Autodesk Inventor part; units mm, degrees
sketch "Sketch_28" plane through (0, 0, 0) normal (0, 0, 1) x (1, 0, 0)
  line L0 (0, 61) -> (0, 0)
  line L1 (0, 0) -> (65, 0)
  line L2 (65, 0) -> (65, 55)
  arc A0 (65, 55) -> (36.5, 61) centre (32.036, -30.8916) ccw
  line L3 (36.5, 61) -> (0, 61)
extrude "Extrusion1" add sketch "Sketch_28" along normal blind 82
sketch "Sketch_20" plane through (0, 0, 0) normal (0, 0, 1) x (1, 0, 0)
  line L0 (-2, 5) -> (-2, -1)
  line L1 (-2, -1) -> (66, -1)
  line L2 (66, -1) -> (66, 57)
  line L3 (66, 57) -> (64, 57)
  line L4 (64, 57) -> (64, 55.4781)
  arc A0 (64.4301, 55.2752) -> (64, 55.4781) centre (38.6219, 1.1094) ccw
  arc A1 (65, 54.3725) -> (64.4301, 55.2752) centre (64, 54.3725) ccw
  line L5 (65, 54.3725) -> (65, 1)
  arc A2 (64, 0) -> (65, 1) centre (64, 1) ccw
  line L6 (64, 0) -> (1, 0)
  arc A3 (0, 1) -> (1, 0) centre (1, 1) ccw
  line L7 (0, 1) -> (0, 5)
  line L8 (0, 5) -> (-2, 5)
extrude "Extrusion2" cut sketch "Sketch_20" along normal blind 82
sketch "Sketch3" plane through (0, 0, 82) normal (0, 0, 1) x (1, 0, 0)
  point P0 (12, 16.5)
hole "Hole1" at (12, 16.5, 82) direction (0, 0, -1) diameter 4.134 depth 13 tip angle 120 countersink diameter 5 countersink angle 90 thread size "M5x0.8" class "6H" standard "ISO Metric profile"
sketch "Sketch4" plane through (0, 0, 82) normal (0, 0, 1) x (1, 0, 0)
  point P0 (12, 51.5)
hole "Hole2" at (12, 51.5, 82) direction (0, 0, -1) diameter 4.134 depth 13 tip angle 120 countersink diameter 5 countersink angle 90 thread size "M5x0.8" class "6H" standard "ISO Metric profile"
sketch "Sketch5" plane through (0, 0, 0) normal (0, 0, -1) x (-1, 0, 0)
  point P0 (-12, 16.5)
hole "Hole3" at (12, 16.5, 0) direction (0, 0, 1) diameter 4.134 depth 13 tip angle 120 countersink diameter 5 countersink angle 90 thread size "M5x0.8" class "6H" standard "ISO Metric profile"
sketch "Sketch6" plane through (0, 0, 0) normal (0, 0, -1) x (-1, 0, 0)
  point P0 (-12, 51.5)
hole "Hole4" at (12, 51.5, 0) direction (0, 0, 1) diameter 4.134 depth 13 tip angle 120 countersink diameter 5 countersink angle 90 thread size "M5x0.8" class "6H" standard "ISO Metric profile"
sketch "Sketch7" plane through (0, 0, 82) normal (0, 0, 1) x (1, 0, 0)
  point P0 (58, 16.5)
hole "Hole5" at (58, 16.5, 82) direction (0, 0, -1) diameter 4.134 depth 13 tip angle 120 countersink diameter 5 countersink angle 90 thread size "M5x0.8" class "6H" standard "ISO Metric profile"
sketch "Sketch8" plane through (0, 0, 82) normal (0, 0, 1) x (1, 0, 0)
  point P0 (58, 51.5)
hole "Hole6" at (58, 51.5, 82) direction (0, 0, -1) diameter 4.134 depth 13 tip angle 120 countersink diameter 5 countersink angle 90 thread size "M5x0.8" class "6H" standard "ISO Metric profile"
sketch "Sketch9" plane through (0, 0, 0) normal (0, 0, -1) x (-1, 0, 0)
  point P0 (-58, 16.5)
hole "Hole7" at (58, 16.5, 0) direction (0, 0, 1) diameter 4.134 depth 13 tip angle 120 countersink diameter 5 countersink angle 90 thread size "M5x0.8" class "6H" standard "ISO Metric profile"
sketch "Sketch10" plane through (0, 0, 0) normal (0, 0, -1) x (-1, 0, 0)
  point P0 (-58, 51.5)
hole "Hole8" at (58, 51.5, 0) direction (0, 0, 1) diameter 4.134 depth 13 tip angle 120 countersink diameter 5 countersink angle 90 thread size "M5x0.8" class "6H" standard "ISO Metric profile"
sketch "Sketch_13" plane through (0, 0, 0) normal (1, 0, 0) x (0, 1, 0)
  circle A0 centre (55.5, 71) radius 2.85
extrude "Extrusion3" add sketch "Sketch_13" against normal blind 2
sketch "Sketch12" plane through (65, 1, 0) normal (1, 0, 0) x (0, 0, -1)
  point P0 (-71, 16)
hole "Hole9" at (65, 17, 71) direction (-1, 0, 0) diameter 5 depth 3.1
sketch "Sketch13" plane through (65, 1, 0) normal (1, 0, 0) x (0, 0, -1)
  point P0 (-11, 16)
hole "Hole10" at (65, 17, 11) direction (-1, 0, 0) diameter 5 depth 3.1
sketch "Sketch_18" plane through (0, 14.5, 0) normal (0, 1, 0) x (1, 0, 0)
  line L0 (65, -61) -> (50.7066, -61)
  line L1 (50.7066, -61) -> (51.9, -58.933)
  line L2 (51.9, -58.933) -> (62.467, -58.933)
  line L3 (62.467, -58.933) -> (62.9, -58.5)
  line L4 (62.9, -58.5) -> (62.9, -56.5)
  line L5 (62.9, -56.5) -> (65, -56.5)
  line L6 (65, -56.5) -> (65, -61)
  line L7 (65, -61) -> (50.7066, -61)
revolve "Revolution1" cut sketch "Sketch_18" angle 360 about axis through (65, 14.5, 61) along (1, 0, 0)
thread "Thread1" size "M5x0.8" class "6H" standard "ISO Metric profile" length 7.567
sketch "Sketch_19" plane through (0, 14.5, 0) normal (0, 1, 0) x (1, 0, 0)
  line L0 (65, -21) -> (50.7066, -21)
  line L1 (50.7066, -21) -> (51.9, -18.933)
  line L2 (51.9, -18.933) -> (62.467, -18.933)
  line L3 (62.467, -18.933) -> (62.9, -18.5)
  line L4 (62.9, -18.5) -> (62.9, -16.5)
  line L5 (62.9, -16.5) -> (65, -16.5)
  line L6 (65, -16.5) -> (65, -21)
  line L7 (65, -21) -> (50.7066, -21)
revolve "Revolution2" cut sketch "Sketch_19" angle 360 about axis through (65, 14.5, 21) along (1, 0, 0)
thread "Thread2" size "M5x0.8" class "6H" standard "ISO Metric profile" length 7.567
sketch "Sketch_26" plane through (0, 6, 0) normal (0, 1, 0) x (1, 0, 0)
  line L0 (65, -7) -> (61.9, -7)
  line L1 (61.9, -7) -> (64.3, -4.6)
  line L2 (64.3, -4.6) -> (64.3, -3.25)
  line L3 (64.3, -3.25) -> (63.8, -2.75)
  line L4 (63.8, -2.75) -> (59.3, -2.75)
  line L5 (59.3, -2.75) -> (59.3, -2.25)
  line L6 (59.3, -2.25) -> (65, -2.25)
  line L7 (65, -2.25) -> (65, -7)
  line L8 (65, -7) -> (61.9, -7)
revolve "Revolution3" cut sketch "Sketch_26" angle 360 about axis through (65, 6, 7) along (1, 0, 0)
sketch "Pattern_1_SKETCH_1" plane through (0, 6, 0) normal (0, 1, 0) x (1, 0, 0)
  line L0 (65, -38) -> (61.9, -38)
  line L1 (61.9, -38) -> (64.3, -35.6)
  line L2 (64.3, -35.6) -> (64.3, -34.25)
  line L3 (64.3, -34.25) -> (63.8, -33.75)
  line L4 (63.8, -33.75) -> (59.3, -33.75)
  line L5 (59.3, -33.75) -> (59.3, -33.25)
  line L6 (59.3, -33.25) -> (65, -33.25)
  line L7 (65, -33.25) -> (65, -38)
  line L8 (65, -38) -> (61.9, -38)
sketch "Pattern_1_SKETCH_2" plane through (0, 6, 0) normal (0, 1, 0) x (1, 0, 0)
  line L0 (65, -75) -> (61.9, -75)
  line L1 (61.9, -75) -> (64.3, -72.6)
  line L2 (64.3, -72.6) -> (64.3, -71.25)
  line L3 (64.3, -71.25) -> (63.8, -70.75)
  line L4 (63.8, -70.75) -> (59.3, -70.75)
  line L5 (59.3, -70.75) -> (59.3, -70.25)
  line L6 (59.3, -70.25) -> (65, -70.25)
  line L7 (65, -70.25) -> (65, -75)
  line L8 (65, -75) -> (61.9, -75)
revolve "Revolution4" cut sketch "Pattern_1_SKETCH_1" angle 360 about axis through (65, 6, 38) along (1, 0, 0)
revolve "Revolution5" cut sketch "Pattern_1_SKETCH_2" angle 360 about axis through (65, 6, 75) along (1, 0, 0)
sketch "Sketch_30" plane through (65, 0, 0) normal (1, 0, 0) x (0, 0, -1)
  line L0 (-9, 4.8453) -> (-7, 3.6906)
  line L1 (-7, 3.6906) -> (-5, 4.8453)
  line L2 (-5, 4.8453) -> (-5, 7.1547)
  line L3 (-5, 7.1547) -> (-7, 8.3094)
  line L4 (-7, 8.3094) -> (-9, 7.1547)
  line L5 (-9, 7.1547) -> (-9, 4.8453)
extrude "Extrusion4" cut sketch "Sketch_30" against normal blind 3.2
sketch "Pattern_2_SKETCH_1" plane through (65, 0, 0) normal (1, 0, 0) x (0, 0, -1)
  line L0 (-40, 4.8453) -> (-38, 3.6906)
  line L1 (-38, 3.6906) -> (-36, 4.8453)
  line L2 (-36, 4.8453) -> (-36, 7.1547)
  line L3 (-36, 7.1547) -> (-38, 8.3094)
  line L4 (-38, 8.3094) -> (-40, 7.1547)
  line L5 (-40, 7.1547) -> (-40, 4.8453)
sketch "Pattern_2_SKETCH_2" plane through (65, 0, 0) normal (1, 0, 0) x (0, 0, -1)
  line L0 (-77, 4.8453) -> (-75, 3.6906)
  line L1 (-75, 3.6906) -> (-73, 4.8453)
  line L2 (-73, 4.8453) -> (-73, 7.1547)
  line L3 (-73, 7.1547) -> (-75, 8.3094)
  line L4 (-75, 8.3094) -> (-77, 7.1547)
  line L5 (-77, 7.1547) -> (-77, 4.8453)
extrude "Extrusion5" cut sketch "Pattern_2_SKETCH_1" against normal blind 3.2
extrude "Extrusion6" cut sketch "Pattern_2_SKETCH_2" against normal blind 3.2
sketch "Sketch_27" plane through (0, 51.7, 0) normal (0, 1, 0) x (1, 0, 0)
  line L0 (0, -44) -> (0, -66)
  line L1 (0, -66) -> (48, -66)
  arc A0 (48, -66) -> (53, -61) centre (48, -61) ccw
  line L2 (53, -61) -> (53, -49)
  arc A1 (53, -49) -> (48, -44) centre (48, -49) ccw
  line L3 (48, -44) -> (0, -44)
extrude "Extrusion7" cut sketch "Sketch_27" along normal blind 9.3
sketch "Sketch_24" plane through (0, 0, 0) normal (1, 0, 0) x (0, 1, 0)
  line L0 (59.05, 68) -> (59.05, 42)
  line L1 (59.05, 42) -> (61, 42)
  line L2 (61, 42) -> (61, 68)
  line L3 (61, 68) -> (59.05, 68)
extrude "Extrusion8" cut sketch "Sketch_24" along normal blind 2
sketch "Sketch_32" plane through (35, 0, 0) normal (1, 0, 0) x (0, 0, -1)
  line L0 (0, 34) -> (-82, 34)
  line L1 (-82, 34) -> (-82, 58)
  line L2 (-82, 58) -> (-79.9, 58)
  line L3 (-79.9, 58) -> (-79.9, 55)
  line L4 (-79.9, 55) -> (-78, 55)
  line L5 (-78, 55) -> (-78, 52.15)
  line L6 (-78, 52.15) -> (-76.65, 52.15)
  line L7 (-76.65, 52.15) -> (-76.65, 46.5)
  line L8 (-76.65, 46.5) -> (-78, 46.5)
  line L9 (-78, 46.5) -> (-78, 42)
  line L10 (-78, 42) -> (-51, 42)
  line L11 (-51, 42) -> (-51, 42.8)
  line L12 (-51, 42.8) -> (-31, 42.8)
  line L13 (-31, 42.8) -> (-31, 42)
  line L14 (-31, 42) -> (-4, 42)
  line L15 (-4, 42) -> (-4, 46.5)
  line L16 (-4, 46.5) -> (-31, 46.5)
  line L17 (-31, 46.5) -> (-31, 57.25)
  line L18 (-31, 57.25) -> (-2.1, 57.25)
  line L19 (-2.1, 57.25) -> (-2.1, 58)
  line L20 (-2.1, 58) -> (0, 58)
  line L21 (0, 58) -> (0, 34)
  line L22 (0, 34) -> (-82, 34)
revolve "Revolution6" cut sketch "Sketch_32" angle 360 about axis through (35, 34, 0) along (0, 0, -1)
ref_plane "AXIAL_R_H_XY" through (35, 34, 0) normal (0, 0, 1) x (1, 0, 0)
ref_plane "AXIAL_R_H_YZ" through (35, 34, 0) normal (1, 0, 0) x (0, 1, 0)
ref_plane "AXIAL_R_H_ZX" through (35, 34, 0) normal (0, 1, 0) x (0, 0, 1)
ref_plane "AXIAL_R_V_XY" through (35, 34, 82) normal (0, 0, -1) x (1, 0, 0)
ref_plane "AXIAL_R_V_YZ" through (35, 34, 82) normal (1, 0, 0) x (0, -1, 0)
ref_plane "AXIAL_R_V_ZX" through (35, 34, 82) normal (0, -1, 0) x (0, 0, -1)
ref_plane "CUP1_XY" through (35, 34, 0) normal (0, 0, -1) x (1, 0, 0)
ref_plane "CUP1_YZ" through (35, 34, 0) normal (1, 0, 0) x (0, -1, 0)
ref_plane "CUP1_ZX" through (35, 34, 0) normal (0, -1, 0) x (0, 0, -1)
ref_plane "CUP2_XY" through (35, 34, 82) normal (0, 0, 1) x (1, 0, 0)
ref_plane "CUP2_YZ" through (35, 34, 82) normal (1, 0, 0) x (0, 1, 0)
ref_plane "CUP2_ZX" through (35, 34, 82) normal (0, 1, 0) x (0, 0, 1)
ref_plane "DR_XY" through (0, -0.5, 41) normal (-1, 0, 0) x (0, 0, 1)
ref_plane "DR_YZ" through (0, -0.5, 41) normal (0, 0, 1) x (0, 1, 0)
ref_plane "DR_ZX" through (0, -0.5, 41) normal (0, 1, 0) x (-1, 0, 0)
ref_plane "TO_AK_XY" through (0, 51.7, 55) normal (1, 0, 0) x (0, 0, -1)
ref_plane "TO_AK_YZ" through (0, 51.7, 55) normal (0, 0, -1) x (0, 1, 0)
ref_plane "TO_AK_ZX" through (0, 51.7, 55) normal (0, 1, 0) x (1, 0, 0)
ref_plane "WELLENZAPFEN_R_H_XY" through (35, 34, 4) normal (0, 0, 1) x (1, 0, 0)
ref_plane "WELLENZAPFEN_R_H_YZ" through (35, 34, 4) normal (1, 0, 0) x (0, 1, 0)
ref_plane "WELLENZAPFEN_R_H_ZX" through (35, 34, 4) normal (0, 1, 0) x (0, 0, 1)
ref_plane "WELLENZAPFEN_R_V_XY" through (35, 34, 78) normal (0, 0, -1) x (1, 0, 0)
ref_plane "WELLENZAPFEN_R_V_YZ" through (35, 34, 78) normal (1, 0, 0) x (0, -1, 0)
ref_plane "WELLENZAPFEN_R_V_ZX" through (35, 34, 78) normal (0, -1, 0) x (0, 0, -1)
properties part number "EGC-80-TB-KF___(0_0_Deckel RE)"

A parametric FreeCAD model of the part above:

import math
import FreeCAD as App
import Part
import Sketcher

V = App.Vector
Q = App.Units.Quantity

doc = App.newDocument("Part")
body = doc.addObject("PartDesign::Body", "Body")

# Sketch on XY plane
sketch1 = doc.addObject("Sketcher::SketchObject", "Sketch")
body.addObject(sketch1)
sketch1.AttachmentSupport = (doc.XY_Plane, [""])
sketch1.MapMode = "FlatFace"
sketch1.addGeometry([
    Part.LineSegment(V(36, 61, 0), V(0, 61, 0)),  # 0
    Part.LineSegment(V(0, 61, 0), V(0, 0, 0)),  # 1
    Part.LineSegment(V(0, 0, 0), V(65, 0, 0)),  # 2
    Part.LineSegment(V(65, 0, 0), V(65, 55, 0)),  # 3
    Part.ArcOfCircle(Part.Circle(V(32, -31, 0), V(0, 0, 1), 92), math.radians(69), math.radians(87.22)),  # 4
], False)
sketch1.addConstraint([
    Sketcher.Constraint("Coincident", 0, 2, 1, 1),
    Sketcher.Constraint("Coincident", 1, 2, 2, 1),
    Sketcher.Constraint("Coincident", 2, 2, 3, 1),
    Sketcher.Constraint("Coincident", 3, 2, 4, 1),
    Sketcher.Constraint("Coincident", 4, 2, 0, 1),
    Sketcher.Constraint("Horizontal", 0),
    Sketcher.Constraint("Vertical", 1),
    Sketcher.Constraint("Horizontal", 2),
    Sketcher.Constraint("Vertical", 3),
    Sketcher.Constraint("Coincident", 1, 2, -1, 1),
    Sketcher.Constraint("Radius", 4, 92.0),
    Sketcher.Constraint("DistanceX", 2, 1, 2, 2, 65.0),
    Sketcher.Constraint("DistanceY", 1, 2, 1, 1, 61.0),
    Sketcher.Constraint("DistanceY", 3, 1, 3, 2, 55.0),
    Sketcher.Constraint("DistanceX", 0, 2, 0, 1, 36.5),
])
pad1 = doc.addObject("PartDesign::Pad", "Pad")
body.addObject(pad1)
pad1.Profile = sketch1
pad1.Length = 82

# Sketch on XY plane
sketch2 = doc.addObject("Sketcher::SketchObject", "Sketch001")
body.addObject(sketch2)
sketch2.AttachmentSupport = (doc.XY_Plane, [""])
sketch2.MapMode = "FlatFace"
sketch2.addGeometry([
    Part.LineSegment(V(0, 5, 0), V(-2, 5, 0)),  # 0
    Part.LineSegment(V(-2, 5, 0), V(-2, -1, 0)),  # 1
    Part.LineSegment(V(-2, -1, 0), V(66, -1, 0)),  # 2
    Part.LineSegment(V(66, -1, 0), V(66, 57, 0)),  # 3
    Part.LineSegment(V(66, 57, 0), V(64, 57, 0)),  # 4
    Part.LineSegment(V(64, 57, 0), V(64, 55.4781, 0)),  # 5
    Part.ArcOfCircle(Part.Circle(V(37.07428, -2.155362, 0), V(0, 0, 1), 63.612973), math.radians(64.530203), math.radians(64.958535)),  # 6
    Part.ArcOfCircle(Part.Circle(V(64, 54.3725, 0), V(0, 0, 1), 1), math.radians(0), math.radians(64.524091)),  # 7
    Part.LineSegment(V(65, 54.3725, 0), V(65, 1, 0)),  # 8
    Part.ArcOfCircle(Part.Circle(V(64, 1, 0), V(0, 0, 1), 1), math.radians(-90), math.radians(0)),  # 9
    Part.LineSegment(V(64, 0, 0), V(1, 0, 0)),  # 10
    Part.ArcOfCircle(Part.Circle(V(1, 1, 0), V(0, 0, 1), 1), math.radians(180), math.radians(270)),  # 11
    Part.LineSegment(V(0, 1, 0), V(0, 5, 0)),  # 12
], False)
sketch2.addConstraint([
    Sketcher.Constraint("Coincident", 0, 2, 1, 1),
    Sketcher.Constraint("Coincident", 1, 2, 2, 1),
    Sketcher.Constraint("Coincident", 2, 2, 3, 1),
    Sketcher.Constraint("Coincident", 3, 2, 4, 1),
    Sketcher.Constraint("Coincident", 4, 2, 5, 1),
    Sketcher.Constraint("Coincident", 5, 2, 6, 2),
    Sketcher.Constraint("Coincident", 6, 1, 7, 2),
    Sketcher.Constraint("Coincident", 7, 1, 8, 1),
    Sketcher.Constraint("Coincident", 8, 2, 9, 2),
    Sketcher.Constraint("Coincident", 9, 1, 10, 1),
    Sketcher.Constraint("Coincident", 10, 2, 11, 2),
    Sketcher.Constraint("Coincident", 11, 1, 12, 1),
    Sketcher.Constraint("Coincident", 12, 2, 0, 1),
    Sketcher.Constraint("Horizontal", 0),
    Sketcher.Constraint("Vertical", 1),
    Sketcher.Constraint("Horizontal", 2),
    Sketcher.Constraint("Vertical", 3),
    Sketcher.Constraint("Horizontal", 4),
    Sketcher.Constraint("Vertical", 5),
    Sketcher.Constraint("Vertical", 8),
    Sketcher.Constraint("Horizontal", 10),
    Sketcher.Constraint("Vertical", 12),
    Sketcher.Constraint("PointOnObject", 9, 1, -1),
    Sketcher.Constraint("PointOnObject", 11, 1, -2),
    Sketcher.Constraint("Radius", 7, 1.0),
    Sketcher.Constraint("Radius", 9, 1.0),
    Sketcher.Constraint("Radius", 11, 1.0),
    Sketcher.Constraint("DistanceX", 0, 2, 0, 1, 2.0),
    Sketcher.Constraint("DistanceX", 2, 1, 2, 2, 68.0),
    Sketcher.Constraint("DistanceX", 4, 2, 4, 1, 2.0),
    Sketcher.Constraint("DistanceX", 10, 2, 10, 1, 63.0),
    Sketcher.Constraint("DistanceY", 1, 2, 1, 1, 6.0),
    Sketcher.Constraint("DistanceY", 3, 1, 3, 2, 58.0),
    Sketcher.Constraint("DistanceY", 12, 1, 12, 2, 4.0),
    Sketcher.Constraint("DistanceX", -1, 1, 7, 3, 64.0),
    Sketcher.Constraint("DistanceY", -1, 1, 0, 2, 5.0),
    Sketcher.Constraint("DistanceY", -1, 1, 8, 2, 1.0),
    Sketcher.Constraint("DistanceX", -1, 1, 9, 1, 64.0),
    Sketcher.Constraint("Radius", 6, 63.613),
    Sketcher.Constraint("DistanceY", 5, 2, 5, 1, 1.522),
    Sketcher.Constraint("DistanceX", -1, 1, 6, 1, 64.43),
    Sketcher.Constraint("DistanceY", 8, 2, 8, 1, 53.3725),
    Sketcher.Constraint("DistanceX", -1, 1, 6, 3, 37.0743),
])
pocket1 = doc.addObject("PartDesign::Pocket", "Pocket")
body.addObject(pocket1)
pocket1.Profile = sketch2
pocket1.Length = 82
pocket1.Reversed = True

# Sketch on XY plane
sketch3 = doc.addObject("Sketcher::SketchObject", "Sketch002")
body.addObject(sketch3)
sketch3.AttachmentSupport = (doc.XY_Plane, [""])
sketch3.MapMode = "FlatFace"
sketch3.AttachmentOffset = App.Placement(V(0, 0, 82), App.Rotation())
sketch3.addGeometry(Part.Circle(V(12, 16.5, 0), V(0, 0, 1), 2.1), False)
sketch3.addConstraint([
    Sketcher.Constraint("Diameter", 0, 4.134),
    Sketcher.Constraint("DistanceX", -1, 1, 0, 3, 12.0),
    Sketcher.Constraint("DistanceY", -1, 1, 0, 3, 16.5),
])
doc.recompute()
hole = doc.addObject("PartDesign::Hole", "Hole")
body.addObject(hole)
hole.Profile = sketch3
hole.ThreadType = "None"
hole.Diameter = 4.134
hole.DepthType = "Dimension"
hole.Depth = 13
hole.DrillPoint = "Angled"
hole.DrillPointAngle = 120
hole.HoleCutType = "Countersink"
hole.HoleCutDiameter = 5
hole.HoleCutCountersinkAngle = 90

# Sketch on XY plane
sketch4 = doc.addObject("Sketcher::SketchObject", "Sketch003")
body.addObject(sketch4)
sketch4.AttachmentSupport = (doc.XY_Plane, [""])
sketch4.MapMode = "FlatFace"
sketch4.AttachmentOffset = App.Placement(V(0, 0, 82), App.Rotation())
sketch4.addGeometry(Part.Circle(V(12, 51.5, 0), V(0, 0, 1), 2.1), False)
sketch4.addConstraint([
    Sketcher.Constraint("Diameter", 0, 4.134),
    Sketcher.Constraint("DistanceX", -1, 1, 0, 3, 12.0),
    Sketcher.Constraint("DistanceY", -1, 1, 0, 3, 51.5),
])
doc.recompute()
hole2 = doc.addObject("PartDesign::Hole", "Hole001")
body.addObject(hole2)
hole2.Profile = sketch4
hole2.ThreadType = "None"
hole2.Diameter = 4.134
hole2.DepthType = "Dimension"
hole2.Depth = 13
hole2.DrillPoint = "Angled"
hole2.DrillPointAngle = 120
hole2.HoleCutType = "Countersink"
hole2.HoleCutDiameter = 5
hole2.HoleCutCountersinkAngle = 90

# Sketch on XY plane
sketch5 = doc.addObject("Sketcher::SketchObject", "Sketch004")
body.addObject(sketch5)
sketch5.AttachmentSupport = (doc.XY_Plane, [""])
sketch5.MapMode = "FlatFace"
sketch5.addGeometry(Part.Circle(V(12, 16.5, 0), V(0, 0, 1), 2.1), False)
sketch5.addConstraint([
    Sketcher.Constraint("Diameter", 0, 4.134),
    Sketcher.Constraint("DistanceX", -1, 1, 0, 3, 12.0),
    Sketcher.Constraint("DistanceY", -1, 1, 0, 3, 16.5),
])
doc.recompute()
hole3 = doc.addObject("PartDesign::Hole", "Hole002")
body.addObject(hole3)
hole3.Profile = sketch5
hole3.ThreadType = "None"
hole3.Diameter = 4.134
hole3.DepthType = "Dimension"
hole3.Depth = 13
hole3.DrillPoint = "Angled"
hole3.DrillPointAngle = 120
hole3.HoleCutType = "Countersink"
hole3.HoleCutDiameter = 5
hole3.HoleCutCountersinkAngle = 90
hole3.Reversed = True

# Sketch on XY plane
sketch6 = doc.addObject("Sketcher::SketchObject", "Sketch005")
body.addObject(sketch6)
sketch6.AttachmentSupport = (doc.XY_Plane, [""])
sketch6.MapMode = "FlatFace"
sketch6.addGeometry(Part.Circle(V(12, 51.5, 0), V(0, 0, 1), 2.1), False)
sketch6.addConstraint([
    Sketcher.Constraint("Diameter", 0, 4.134),
    Sketcher.Constraint("DistanceX", -1, 1, 0, 3, 12.0),
    Sketcher.Constraint("DistanceY", -1, 1, 0, 3, 51.5),
])
doc.recompute()
hole4 = doc.addObject("PartDesign::Hole", "Hole003")
body.addObject(hole4)
hole4.Profile = sketch6
hole4.ThreadType = "None"
hole4.Diameter = 4.134
hole4.DepthType = "Dimension"
hole4.Depth = 13
hole4.DrillPoint = "Angled"
hole4.DrillPointAngle = 120
hole4.HoleCutType = "Countersink"
hole4.HoleCutDiameter = 5
hole4.HoleCutCountersinkAngle = 90
hole4.Reversed = True

# Sketch on XY plane
sketch7 = doc.addObject("Sketcher::SketchObject", "Sketch006")
body.addObject(sketch7)
sketch7.AttachmentSupport = (doc.XY_Plane, [""])
sketch7.MapMode = "FlatFace"
sketch7.AttachmentOffset = App.Placement(V(0, 0, 82), App.Rotation())
sketch7.addGeometry(Part.Circle(V(58, 16.5, 0), V(0, 0, 1), 2.1), False)
sketch7.addConstraint([
    Sketcher.Constraint("Diameter", 0, 4.134),
    Sketcher.Constraint("DistanceX", -1, 1, 0, 3, 58.0),
    Sketcher.Constraint("DistanceY", -1, 1, 0, 3, 16.5),
])
doc.recompute()
hole5 = doc.addObject("PartDesign::Hole", "Hole004")
body.addObject(hole5)
hole5.Profile = sketch7
hole5.ThreadType = "None"
hole5.Diameter = 4.134
hole5.DepthType = "Dimension"
hole5.Depth = 13
hole5.DrillPoint = "Angled"
hole5.DrillPointAngle = 120
hole5.HoleCutType = "Countersink"
hole5.HoleCutDiameter = 5
hole5.HoleCutCountersinkAngle = 90

# Sketch on XY plane
sketch8 = doc.addObject("Sketcher::SketchObject", "Sketch007")
body.addObject(sketch8)
sketch8.AttachmentSupport = (doc.XY_Plane, [""])
sketch8.MapMode = "FlatFace"
sketch8.AttachmentOffset = App.Placement(V(0, 0, 82), App.Rotation())
sketch8.addGeometry(Part.Circle(V(58, 51.5, 0), V(0, 0, 1), 2.1), False)
sketch8.addConstraint([
    Sketcher.Constraint("Diameter", 0, 4.134),
    Sketcher.Constraint("DistanceX", -1, 1, 0, 3, 58.0),
    Sketcher.Constraint("DistanceY", -1, 1, 0, 3, 51.5),
])
doc.recompute()
hole6 = doc.addObject("PartDesign::Hole", "Hole005")
body.addObject(hole6)
hole6.Profile = sketch8
hole6.ThreadType = "None"
hole6.Diameter = 4.134
hole6.DepthType = "Dimension"
hole6.Depth = 13
hole6.DrillPoint = "Angled"
hole6.DrillPointAngle = 120
hole6.HoleCutType = "Countersink"
hole6.HoleCutDiameter = 5
hole6.HoleCutCountersinkAngle = 90

# Sketch on XY plane
sketch9 = doc.addObject("Sketcher::SketchObject", "Sketch008")
body.addObject(sketch9)
sketch9.AttachmentSupport = (doc.XY_Plane, [""])
sketch9.MapMode = "FlatFace"
sketch9.addGeometry(Part.Circle(V(58, 16.5, 0), V(0, 0, 1), 2.1), False)
sketch9.addConstraint([
    Sketcher.Constraint("Diameter", 0, 4.134),
    Sketcher.Constraint("DistanceX", -1, 1, 0, 3, 58.0),
    Sketcher.Constraint("DistanceY", -1, 1, 0, 3, 16.5),
])
doc.recompute()
hole7 = doc.addObject("PartDesign::Hole", "Hole006")
body.addObject(hole7)
hole7.Profile = sketch9
hole7.ThreadType = "None"
hole7.Diameter = 4.134
hole7.DepthType = "Dimension"
hole7.Depth = 13
hole7.DrillPoint = "Angled"
hole7.DrillPointAngle = 120
hole7.HoleCutType = "Countersink"
hole7.HoleCutDiameter = 5
hole7.HoleCutCountersinkAngle = 90
hole7.Reversed = True

# Sketch on XY plane
sketch10 = doc.addObject("Sketcher::SketchObject", "Sketch009")
body.addObject(sketch10)
sketch10.AttachmentSupport = (doc.XY_Plane, [""])
sketch10.MapMode = "FlatFace"
sketch10.addGeometry(Part.Circle(V(58, 51.5, 0), V(0, 0, 1), 2.1), False)
sketch10.addConstraint([
    Sketcher.Constraint("Diameter", 0, 4.134),
    Sketcher.Constraint("DistanceX", -1, 1, 0, 3, 58.0),
    Sketcher.Constraint("DistanceY", -1, 1, 0, 3, 51.5),
])
doc.recompute()
hole8 = doc.addObject("PartDesign::Hole", "Hole007")
body.addObject(hole8)
hole8.Profile = sketch10
hole8.ThreadType = "None"
hole8.Diameter = 4.134
hole8.DepthType = "Dimension"
hole8.Depth = 13
hole8.DrillPoint = "Angled"
hole8.DrillPointAngle = 120
hole8.HoleCutType = "Countersink"
hole8.HoleCutDiameter = 5
hole8.HoleCutCountersinkAngle = 90
hole8.Reversed = True

# Sketch on YZ plane
sketch11 = doc.addObject("Sketcher::SketchObject", "Sketch010")
body.addObject(sketch11)
sketch11.AttachmentSupport = (doc.YZ_Plane, [""])
sketch11.MapMode = "FlatFace"
sketch11.addGeometry(Part.Circle(V(55.5, 71, 0), V(0, 0, 1), 2.9), False)
sketch11.addConstraint([
    Sketcher.Constraint("Diameter", 0, 5.7),
    Sketcher.Constraint("DistanceY", -1, 1, 0, 3, 71.0),
    Sketcher.Constraint("DistanceX", -1, 1, 0, 3, 55.5),
])
pad2 = doc.addObject("PartDesign::Pad", "Pad001")
body.addObject(pad2)
pad2.Profile = sketch11
pad2.Length = 2
pad2.Reversed = True

# Sketch on YZ plane
sketch12 = doc.addObject("Sketcher::SketchObject", "Sketch011")
body.addObject(sketch12)
sketch12.AttachmentSupport = (doc.YZ_Plane, [""])
sketch12.MapMode = "FlatFace"
sketch12.AttachmentOffset = App.Placement(V(0, 0, 65), App.Rotation())
sketch12.addGeometry(Part.Circle(V(17, 71, 0), V(0, 0, 1), 2.5), False)
sketch12.addConstraint([
    Sketcher.Constraint("Diameter", 0, 5.0),
    Sketcher.Constraint("DistanceX", -1, 1, 0, 3, 17.0),
    Sketcher.Constraint("DistanceY", -1, 1, 0, 3, 71.0),
])
doc.recompute()
hole9 = doc.addObject("PartDesign::Hole", "Hole008")
body.addObject(hole9)
hole9.Profile = sketch12
hole9.ThreadType = "None"
hole9.Diameter = 5
hole9.DepthType = "Dimension"
hole9.Depth = 3.1
hole9.DrillPoint = "Flat"

# Sketch on YZ plane
sketch13 = doc.addObject("Sketcher::SketchObject", "Sketch012")
body.addObject(sketch13)
sketch13.AttachmentSupport = (doc.YZ_Plane, [""])
sketch13.MapMode = "FlatFace"
sketch13.AttachmentOffset = App.Placement(V(0, 0, 65), App.Rotation())
sketch13.addGeometry(Part.Circle(V(17, 11, 0), V(0, 0, 1), 2.5), False)
sketch13.addConstraint([
    Sketcher.Constraint("Diameter", 0, 5.0),
    Sketcher.Constraint("DistanceX", -1, 1, 0, 3, 17.0),
    Sketcher.Constraint("DistanceY", -1, 1, 0, 3, 11.0),
])
doc.recompute()
hole10 = doc.addObject("PartDesign::Hole", "Hole009")
body.addObject(hole10)
hole10.Profile = sketch13
hole10.ThreadType = "None"
hole10.Diameter = 5
hole10.DepthType = "Dimension"
hole10.Depth = 3.1
hole10.DrillPoint = "Flat"

# Sketch on XZ plane
sketch14 = doc.addObject("Sketcher::SketchObject", "Sketch013")
body.addObject(sketch14)
sketch14.AttachmentSupport = (doc.XZ_Plane, [""])
sketch14.MapMode = "FlatFace"
sketch14.AttachmentOffset = App.Placement(V(0, 0, -14.5), App.Rotation())
sketch14.addGeometry([
    Part.LineSegment(V(50.7, 61, 0), V(65, 61, 0)),  # 0
    Part.LineSegment(V(65, 61, 0), V(65, 56.5, 0)),  # 1
    Part.LineSegment(V(65, 56.5, 0), V(62.9, 56.5, 0)),  # 2
    Part.LineSegment(V(62.9, 56.5, 0), V(62.9, 58.5, 0)),  # 3
    Part.LineSegment(V(62.9, 58.5, 0), V(62.5, 58.9, 0)),  # 4
    Part.LineSegment(V(62.5, 58.9, 0), V(51.9, 58.9, 0)),  # 5
    Part.LineSegment(V(51.9, 58.9, 0), V(50.7, 61, 0)),  # 6
], False)
sketch14.addGeometry(Part.LineSegment(V(50.7, 61, 0), V(65, 61, 0)), True)  # axis
sketch14.addConstraint([
    Sketcher.Constraint("Coincident", 0, 2, 1, 1),
    Sketcher.Constraint("Coincident", 1, 2, 2, 1),
    Sketcher.Constraint("Coincident", 2, 2, 3, 1),
    Sketcher.Constraint("Coincident", 3, 2, 4, 1),
    Sketcher.Constraint("Coincident", 4, 2, 5, 1),
    Sketcher.Constraint("Coincident", 5, 2, 6, 1),
    Sketcher.Constraint("Coincident", 6, 2, 0, 1),
    Sketcher.Constraint("Horizontal", 0),
    Sketcher.Constraint("Vertical", 1),
    Sketcher.Constraint("Horizontal", 2),
    Sketcher.Constraint("Vertical", 3),
    Sketcher.Constraint("Horizontal", 5),
    Sketcher.Constraint("Horizontal", 7),
    Sketcher.Constraint("Coincident", 7, 1, 6, 2),
    Sketcher.Constraint("Vertical", 1, 2, 7, 2),
    Sketcher.Constraint("DistanceY", 3, 1, 3, 2, 2.0),
    Sketcher.Constraint("Angle", 4, Q("135 deg")),
    Sketcher.Constraint("Angle", 6, Q("120.0004 deg")),
    Sketcher.Constraint("DistanceX", 2, 2, 2, 1, 2.1),
    Sketcher.Constraint("DistanceY", 1, 2, 1, 1, 4.5),
    Sketcher.Constraint("DistanceX", -1, 1, 0, 2, 65.0),
    Sketcher.Constraint("DistanceY", -1, 1, 0, 2, 61.0),
    Sketcher.Constraint("DistanceX", 5, 2, 3, 2, 11.0),
    Sketcher.Constraint("DistanceX", 5, 2, 5, 1, 10.567),
])
groove = doc.addObject("PartDesign::Groove", "Groove")
body.addObject(groove)
groove.Profile = sketch14
groove.ReferenceAxis = (sketch14, ["Axis0"])
groove.Angle = 360

# Sketch on XZ plane
sketch15 = doc.addObject("Sketcher::SketchObject", "Sketch014")
body.addObject(sketch15)
sketch15.AttachmentSupport = (doc.XZ_Plane, [""])
sketch15.MapMode = "FlatFace"
sketch15.AttachmentOffset = App.Placement(V(0, 0, -14.5), App.Rotation())
sketch15.addGeometry([
    Part.LineSegment(V(50.7, 21, 0), V(65, 21, 0)),  # 0
    Part.LineSegment(V(65, 21, 0), V(65, 16.5, 0)),  # 1
    Part.LineSegment(V(65, 16.5, 0), V(62.9, 16.5, 0)),  # 2
    Part.LineSegment(V(62.9, 16.5, 0), V(62.9, 18.5, 0)),  # 3
    Part.LineSegment(V(62.9, 18.5, 0), V(62.5, 18.9, 0)),  # 4
    Part.LineSegment(V(62.5, 18.9, 0), V(51.9, 18.9, 0)),  # 5
    Part.LineSegment(V(51.9, 18.9, 0), V(50.7, 21, 0)),  # 6
], False)
sketch15.addGeometry(Part.LineSegment(V(50.7, 21, 0), V(65, 21, 0)), True)  # axis
sketch15.addConstraint([
    Sketcher.Constraint("Coincident", 0, 2, 1, 1),
    Sketcher.Constraint("Coincident", 1, 2, 2, 1),
    Sketcher.Constraint("Coincident", 2, 2, 3, 1),
    Sketcher.Constraint("Coincident", 3, 2, 4, 1),
    Sketcher.Constraint("Coincident", 4, 2, 5, 1),
    Sketcher.Constraint("Coincident", 5, 2, 6, 1),
    Sketcher.Constraint("Coincident", 6, 2, 0, 1),
    Sketcher.Constraint("Horizontal", 0),
    Sketcher.Constraint("Vertical", 1),
    Sketcher.Constraint("Horizontal", 2),
    Sketcher.Constraint("Vertical", 3),
    Sketcher.Constraint("Horizontal", 5),
    Sketcher.Constraint("Horizontal", 7),
    Sketcher.Constraint("Coincident", 7, 1, 6, 2),
    Sketcher.Constraint("Vertical", 1, 2, 7, 2),
    Sketcher.Constraint("DistanceY", 3, 1, 3, 2, 2.0),
    Sketcher.Constraint("Angle", 4, Q("135 deg")),
    Sketcher.Constraint("Angle", 6, Q("120.0004 deg")),
    Sketcher.Constraint("DistanceX", 2, 2, 2, 1, 2.1),
    Sketcher.Constraint("DistanceY", 1, 2, 1, 1, 4.5),
    Sketcher.Constraint("DistanceX", -1, 1, 0, 2, 65.0),
    Sketcher.Constraint("DistanceY", -1, 1, 0, 2, 21.0),
    Sketcher.Constraint("DistanceX", 5, 2, 3, 2, 11.0),
    Sketcher.Constraint("DistanceX", 5, 2, 5, 1, 10.567),
])
groove2 = doc.addObject("PartDesign::Groove", "Groove001")
body.addObject(groove2)
groove2.Profile = sketch15
groove2.ReferenceAxis = (sketch15, ["Axis0"])
groove2.Angle = 360

# Sketch on XZ plane
sketch16 = doc.addObject("Sketcher::SketchObject", "Sketch015")
body.addObject(sketch16)
sketch16.AttachmentSupport = (doc.XZ_Plane, [""])
sketch16.MapMode = "FlatFace"
sketch16.AttachmentOffset = App.Placement(V(0, 0, -6), App.Rotation())
sketch16.addGeometry([
    Part.LineSegment(V(61.9, 7, 0), V(65, 7, 0)),  # 0
    Part.LineSegment(V(65, 7, 0), V(65, 2.2, 0)),  # 1
    Part.LineSegment(V(65, 2.2, 0), V(59.3, 2.2, 0)),  # 2
    Part.LineSegment(V(59.3, 2.2, 0), V(59.3, 2.8, 0)),  # 3
    Part.LineSegment(V(59.3, 2.8, 0), V(63.8, 2.8, 0)),  # 4
    Part.LineSegment(V(63.8, 2.8, 0), V(64.3, 3.2, 0)),  # 5
    Part.LineSegment(V(64.3, 3.2, 0), V(64.3, 4.6, 0)),  # 6
    Part.LineSegment(V(64.3, 4.6, 0), V(61.9, 7, 0)),  # 7
], False)
sketch16.addGeometry(Part.LineSegment(V(59.3, 7, 0), V(65, 7, 0)), True)  # axis
sketch16.addConstraint([
    Sketcher.Constraint("Coincident", 0, 2, 1, 1),
    Sketcher.Constraint("Coincident", 1, 2, 2, 1),
    Sketcher.Constraint("Coincident", 2, 2, 3, 1),
    Sketcher.Constraint("Coincident", 3, 2, 4, 1),
    Sketcher.Constraint("Coincident", 4, 2, 5, 1),
    Sketcher.Constraint("Coincident", 5, 2, 6, 1),
    Sketcher.Constraint("Coincident", 6, 2, 7, 1),
    Sketcher.Constraint("Coincident", 7, 2, 0, 1),
    Sketcher.Constraint("Horizontal", 0),
    Sketcher.Constraint("Vertical", 1),
    Sketcher.Constraint("Horizontal", 2),
    Sketcher.Constraint("Vertical", 3),
    Sketcher.Constraint("Horizontal", 4),
    Sketcher.Constraint("Vertical", 6),
    Sketcher.Constraint("Horizontal", 8),
    Sketcher.Constraint("Coincident", 8, 2, 0, 2),
    Sketcher.Constraint("Perpendicular", 5, 7),
    Sketcher.Constraint("Vertical", 3, 2, 8, 1),
    Sketcher.Constraint("Angle", 5, Q("45 deg")),
    Sketcher.Constraint("DistanceX", 0, 1, 0, 2, 3.1),
    Sketcher.Constraint("DistanceX", 2, 2, 2, 1, 5.7),
    Sketcher.Constraint("DistanceX", 4, 1, 4, 2, 4.5),
    Sketcher.Constraint("DistanceY", 3, 1, 3, 2, 0.5),
    Sketcher.Constraint("DistanceX", -1, 1, 0, 2, 65.0),
    Sketcher.Constraint("DistanceY", -1, 1, 0, 2, 7.0),
    Sketcher.Constraint("DistanceY", 1, 2, 5, 2, 1.0),
    Sketcher.Constraint("DistanceY", 1, 2, 1, 1, 4.75),
])
groove3 = doc.addObject("PartDesign::Groove", "Groove002")
body.addObject(groove3)
groove3.Profile = sketch16
groove3.ReferenceAxis = (sketch16, ["Axis0"])
groove3.Angle = 360

# Sketch on XZ plane
sketch17 = doc.addObject("Sketcher::SketchObject", "Sketch016")
body.addObject(sketch17)
sketch17.AttachmentSupport = (doc.XZ_Plane, [""])
sketch17.MapMode = "FlatFace"
sketch17.AttachmentOffset = App.Placement(V(0, 0, -6), App.Rotation())
sketch17.addGeometry([
    Part.LineSegment(V(61.9, 38, 0), V(65, 38, 0)),  # 0
    Part.LineSegment(V(65, 38, 0), V(65, 33.2, 0)),  # 1
    Part.LineSegment(V(65, 33.2, 0), V(59.3, 33.2, 0)),  # 2
    Part.LineSegment(V(59.3, 33.2, 0), V(59.3, 33.8, 0)),  # 3
    Part.LineSegment(V(59.3, 33.8, 0), V(63.8, 33.8, 0)),  # 4
    Part.LineSegment(V(63.8, 33.8, 0), V(64.3, 34.2, 0)),  # 5
    Part.LineSegment(V(64.3, 34.2, 0), V(64.3, 35.6, 0)),  # 6
    Part.LineSegment(V(64.3, 35.6, 0), V(61.9, 38, 0)),  # 7
], False)
sketch17.addGeometry(Part.LineSegment(V(59.3, 38, 0), V(65, 38, 0)), True)  # axis
sketch17.addConstraint([
    Sketcher.Constraint("Coincident", 0, 2, 1, 1),
    Sketcher.Constraint("Coincident", 1, 2, 2, 1),
    Sketcher.Constraint("Coincident", 2, 2, 3, 1),
    Sketcher.Constraint("Coincident", 3, 2, 4, 1),
    Sketcher.Constraint("Coincident", 4, 2, 5, 1),
    Sketcher.Constraint("Coincident", 5, 2, 6, 1),
    Sketcher.Constraint("Coincident", 6, 2, 7, 1),
    Sketcher.Constraint("Coincident", 7, 2, 0, 1),
    Sketcher.Constraint("Horizontal", 0),
    Sketcher.Constraint("Vertical", 1),
    Sketcher.Constraint("Horizontal", 2),
    Sketcher.Constraint("Vertical", 3),
    Sketcher.Constraint("Horizontal", 4),
    Sketcher.Constraint("Vertical", 6),
    Sketcher.Constraint("Horizontal", 8),
    Sketcher.Constraint("Coincident", 8, 2, 0, 2),
    Sketcher.Constraint("Perpendicular", 5, 7),
    Sketcher.Constraint("Vertical", 3, 2, 8, 1),
    Sketcher.Constraint("Angle", 5, Q("45 deg")),
    Sketcher.Constraint("DistanceX", 0, 1, 0, 2, 3.1),
    Sketcher.Constraint("DistanceX", 2, 2, 2, 1, 5.7),
    Sketcher.Constraint("DistanceX", 4, 1, 4, 2, 4.5),
    Sketcher.Constraint("DistanceY", 3, 1, 3, 2, 0.5),
    Sketcher.Constraint("DistanceX", -1, 1, 0, 2, 65.0),
    Sketcher.Constraint("DistanceY", -1, 1, 0, 2, 38.0),
    Sketcher.Constraint("DistanceY", 1, 2, 5, 2, 1.0),
    Sketcher.Constraint("DistanceY", 1, 2, 1, 1, 4.75),
])
groove4 = doc.addObject("PartDesign::Groove", "Groove003")
body.addObject(groove4)
groove4.Profile = sketch17
groove4.ReferenceAxis = (sketch17, ["Axis0"])
groove4.Angle = 360

# Sketch on XZ plane
sketch18 = doc.addObject("Sketcher::SketchObject", "Sketch017")
body.addObject(sketch18)
sketch18.AttachmentSupport = (doc.XZ_Plane, [""])
sketch18.MapMode = "FlatFace"
sketch18.AttachmentOffset = App.Placement(V(0, 0, -6), App.Rotation())
sketch18.addGeometry([
    Part.LineSegment(V(61.9, 75, 0), V(65, 75, 0)),  # 0
    Part.LineSegment(V(65, 75, 0), V(65, 70.2, 0)),  # 1
    Part.LineSegment(V(65, 70.2, 0), V(59.3, 70.2, 0)),  # 2
    Part.LineSegment(V(59.3, 70.2, 0), V(59.3, 70.8, 0)),  # 3
    Part.LineSegment(V(59.3, 70.8, 0), V(63.8, 70.8, 0)),  # 4
    Part.LineSegment(V(63.8, 70.8, 0), V(64.3, 71.2, 0)),  # 5
    Part.LineSegment(V(64.3, 71.2, 0), V(64.3, 72.6, 0)),  # 6
    Part.LineSegment(V(64.3, 72.6, 0), V(61.9, 75, 0)),  # 7
], False)
sketch18.addGeometry(Part.LineSegment(V(59.3, 75, 0), V(65, 75, 0)), True)  # axis
sketch18.addConstraint([
    Sketcher.Constraint("Coincident", 0, 2, 1, 1),
    Sketcher.Constraint("Coincident", 1, 2, 2, 1),
    Sketcher.Constraint("Coincident", 2, 2, 3, 1),
    Sketcher.Constraint("Coincident", 3, 2, 4, 1),
    Sketcher.Constraint("Coincident", 4, 2, 5, 1),
    Sketcher.Constraint("Coincident", 5, 2, 6, 1),
    Sketcher.Constraint("Coincident", 6, 2, 7, 1),
    Sketcher.Constraint("Coincident", 7, 2, 0, 1),
    Sketcher.Constraint("Horizontal", 0),
    Sketcher.Constraint("Vertical", 1),
    Sketcher.Constraint("Horizontal", 2),
    Sketcher.Constraint("Vertical", 3),
    Sketcher.Constraint("Horizontal", 4),
    Sketcher.Constraint("Vertical", 6),
    Sketcher.Constraint("Horizontal", 8),
    Sketcher.Constraint("Coincident", 8, 2, 0, 2),
    Sketcher.Constraint("Perpendicular", 5, 7),
    Sketcher.Constraint("Vertical", 3, 2, 8, 1),
    Sketcher.Constraint("Angle", 5, Q("45 deg")),
    Sketcher.Constraint("DistanceX", 0, 1, 0, 2, 3.1),
    Sketcher.Constraint("DistanceX", 2, 2, 2, 1, 5.7),
    Sketcher.Constraint("DistanceX", 4, 1, 4, 2, 4.5),
    Sketcher.Constraint("DistanceY", 3, 1, 3, 2, 0.5),
    Sketcher.Constraint("DistanceX", -1, 1, 0, 2, 65.0),
    Sketcher.Constraint("DistanceY", -1, 1, 0, 2, 75.0),
    Sketcher.Constraint("DistanceY", 1, 2, 5, 2, 1.0),
    Sketcher.Constraint("DistanceY", 1, 2, 1, 1, 4.75),
])
groove5 = doc.addObject("PartDesign::Groove", "Groove004")
body.addObject(groove5)
groove5.Profile = sketch18
groove5.ReferenceAxis = (sketch18, ["Axis0"])
groove5.Angle = 360

# Sketch on YZ plane
sketch19 = doc.addObject("Sketcher::SketchObject", "Sketch018")
body.addObject(sketch19)
sketch19.AttachmentSupport = (doc.YZ_Plane, [""])
sketch19.MapMode = "FlatFace"
sketch19.AttachmentOffset = App.Placement(V(0, 0, 65), App.Rotation())
sketch19.addGeometry([
    Part.LineSegment(V(7.2, 9, 0), V(4.8, 9, 0)),  # 0
    Part.LineSegment(V(4.8, 9, 0), V(3.7, 7, 0)),  # 1
    Part.LineSegment(V(3.7, 7, 0), V(4.8, 5, 0)),  # 2
    Part.LineSegment(V(4.8, 5, 0), V(7.2, 5, 0)),  # 3
    Part.LineSegment(V(7.2, 5, 0), V(8.3, 7, 0)),  # 4
    Part.LineSegment(V(8.3, 7, 0), V(7.2, 9, 0)),  # 5
], False)
sketch19.addConstraint([
    Sketcher.Constraint("Coincident", 0, 2, 1, 1),
    Sketcher.Constraint("Coincident", 1, 2, 2, 1),
    Sketcher.Constraint("Coincident", 2, 2, 3, 1),
    Sketcher.Constraint("Coincident", 3, 2, 4, 1),
    Sketcher.Constraint("Coincident", 4, 2, 5, 1),
    Sketcher.Constraint("Coincident", 5, 2, 0, 1),
    Sketcher.Constraint("Horizontal", 0),
    Sketcher.Constraint("Horizontal", 3),
    Sketcher.Constraint("Parallel", 1, 4),
    Sketcher.Constraint("Parallel", 2, 5),
    Sketcher.Constraint("Horizontal", 1, 2, 4, 2),
    Sketcher.Constraint("Vertical", 0, 2, 2, 2),
    Sketcher.Constraint("Vertical", 3, 2, 5, 2),
    Sketcher.Constraint("Angle", 1, Q("-120 deg")),
    Sketcher.Constraint("DistanceY", -1, 1, 0, 2, 9.0),
    Sketcher.Constraint("DistanceY", -1, 1, 1, 2, 7.0),
    Sketcher.Constraint("DistanceX", 0, 2, 0, 1, 2.3094),
    Sketcher.Constraint("DistanceX", -1, 1, 0, 2, 4.8453),
])
pocket2 = doc.addObject("PartDesign::Pocket", "Pocket001")
body.addObject(pocket2)
pocket2.Profile = sketch19
pocket2.Length = 3.2

# Sketch on YZ plane
sketch20 = doc.addObject("Sketcher::SketchObject", "Sketch019")
body.addObject(sketch20)
sketch20.AttachmentSupport = (doc.YZ_Plane, [""])
sketch20.MapMode = "FlatFace"
sketch20.AttachmentOffset = App.Placement(V(0, 0, 65), App.Rotation())
sketch20.addGeometry([
    Part.LineSegment(V(7.2, 40, 0), V(4.8, 40, 0)),  # 0
    Part.LineSegment(V(4.8, 40, 0), V(3.7, 38, 0)),  # 1
    Part.LineSegment(V(3.7, 38, 0), V(4.8, 36, 0)),  # 2
    Part.LineSegment(V(4.8, 36, 0), V(7.2, 36, 0)),  # 3
    Part.LineSegment(V(7.2, 36, 0), V(8.3, 38, 0)),  # 4
    Part.LineSegment(V(8.3, 38, 0), V(7.2, 40, 0)),  # 5
], False)
sketch20.addConstraint([
    Sketcher.Constraint("Coincident", 0, 2, 1, 1),
    Sketcher.Constraint("Coincident", 1, 2, 2, 1),
    Sketcher.Constraint("Coincident", 2, 2, 3, 1),
    Sketcher.Constraint("Coincident", 3, 2, 4, 1),
    Sketcher.Constraint("Coincident", 4, 2, 5, 1),
    Sketcher.Constraint("Coincident", 5, 2, 0, 1),
    Sketcher.Constraint("Horizontal", 0),
    Sketcher.Constraint("Horizontal", 3),
    Sketcher.Constraint("Parallel", 1, 4),
    Sketcher.Constraint("Parallel", 2, 5),
    Sketcher.Constraint("Horizontal", 1, 2, 4, 2),
    Sketcher.Constraint("Vertical", 0, 2, 2, 2),
    Sketcher.Constraint("Vertical", 3, 2, 5, 2),
    Sketcher.Constraint("Angle", 1, Q("-120 deg")),
    Sketcher.Constraint("DistanceY", -1, 1, 0, 2, 40.0),
    Sketcher.Constraint("DistanceY", -1, 1, 1, 2, 38.0),
    Sketcher.Constraint("DistanceX", 0, 2, 0, 1, 2.3094),
    Sketcher.Constraint("DistanceX", -1, 1, 0, 2, 4.8453),
])
pocket3 = doc.addObject("PartDesign::Pocket", "Pocket002")
body.addObject(pocket3)
pocket3.Profile = sketch20
pocket3.Length = 3.2

# Sketch on YZ plane
sketch21 = doc.addObject("Sketcher::SketchObject", "Sketch020")
body.addObject(sketch21)
sketch21.AttachmentSupport = (doc.YZ_Plane, [""])
sketch21.MapMode = "FlatFace"
sketch21.AttachmentOffset = App.Placement(V(0, 0, 65), App.Rotation())
sketch21.addGeometry([
    Part.LineSegment(V(7.2, 77, 0), V(4.8, 77, 0)),  # 0
    Part.LineSegment(V(4.8, 77, 0), V(3.7, 75, 0)),  # 1
    Part.LineSegment(V(3.7, 75, 0), V(4.8, 73, 0)),  # 2
    Part.LineSegment(V(4.8, 73, 0), V(7.2, 73, 0)),  # 3
    Part.LineSegment(V(7.2, 73, 0), V(8.3, 75, 0)),  # 4
    Part.LineSegment(V(8.3, 75, 0), V(7.2, 77, 0)),  # 5
], False)
sketch21.addConstraint([
    Sketcher.Constraint("Coincident", 0, 2, 1, 1),
    Sketcher.Constraint("Coincident", 1, 2, 2, 1),
    Sketcher.Constraint("Coincident", 2, 2, 3, 1),
    Sketcher.Constraint("Coincident", 3, 2, 4, 1),
    Sketcher.Constraint("Coincident", 4, 2, 5, 1),
    Sketcher.Constraint("Coincident", 5, 2, 0, 1),
    Sketcher.Constraint("Horizontal", 0),
    Sketcher.Constraint("Horizontal", 3),
    Sketcher.Constraint("Parallel", 1, 4),
    Sketcher.Constraint("Parallel", 2, 5),
    Sketcher.Constraint("Horizontal", 1, 2, 4, 2),
    Sketcher.Constraint("Vertical", 0, 2, 2, 2),
    Sketcher.Constraint("Vertical", 3, 2, 5, 2),
    Sketcher.Constraint("Angle", 1, Q("-120 deg")),
    Sketcher.Constraint("DistanceY", -1, 1, 0, 2, 77.0),
    Sketcher.Constraint("DistanceY", -1, 1, 1, 2, 75.0),
    Sketcher.Constraint("DistanceX", 0, 2, 0, 1, 2.3094),
    Sketcher.Constraint("DistanceX", -1, 1, 0, 2, 4.8453),
])
pocket4 = doc.addObject("PartDesign::Pocket", "Pocket003")
body.addObject(pocket4)
pocket4.Profile = sketch21
pocket4.Length = 3.2

# Sketch on XZ plane
sketch22 = doc.addObject("Sketcher::SketchObject", "Sketch021")
body.addObject(sketch22)
sketch22.AttachmentSupport = (doc.XZ_Plane, [""])
sketch22.MapMode = "FlatFace"
sketch22.AttachmentOffset = App.Placement(V(0, 0, -51.7), App.Rotation())
sketch22.addGeometry([
    Part.LineSegment(V(48, 44, 0), V(0, 44, 0)),  # 0
    Part.LineSegment(V(0, 44, 0), V(0, 66, 0)),  # 1
    Part.LineSegment(V(0, 66, 0), V(48, 66, 0)),  # 2
    Part.ArcOfCircle(Part.Circle(V(48, 61, 0), V(0, 0, 1), 5), math.radians(0), math.radians(90)),  # 3
    Part.LineSegment(V(53, 61, 0), V(53, 49, 0)),  # 4
    Part.ArcOfCircle(Part.Circle(V(48, 49, 0), V(0, 0, 1), 5), math.radians(-90), math.radians(0)),  # 5
], False)
sketch22.addConstraint([
    Sketcher.Constraint("Coincident", 0, 2, 1, 1),
    Sketcher.Constraint("Coincident", 1, 2, 2, 1),
    Sketcher.Constraint("Tangent", 2, 2, 3, 2),
    Sketcher.Constraint("Tangent", 3, 1, 4, 1),
    Sketcher.Constraint("Tangent", 4, 2, 5, 2),
    Sketcher.Constraint("Tangent", 5, 1, 0, 1),
    Sketcher.Constraint("Horizontal", 0),
    Sketcher.Constraint("Vertical", 1),
    Sketcher.Constraint("Horizontal", 2),
    Sketcher.Constraint("Vertical", 4),
    Sketcher.Constraint("Equal", 3, 5),
    Sketcher.Constraint("PointOnObject", 0, 2, -2),
    Sketcher.Constraint("Radius", 3, 5.0),
    Sketcher.Constraint("DistanceX", 0, 2, 0, 1, 48.0),
    Sketcher.Constraint("DistanceY", 1, 1, 1, 2, 22.0),
    Sketcher.Constraint("DistanceY", -1, 1, 3, 3, 61.0),
])
pocket5 = doc.addObject("PartDesign::Pocket", "Pocket004")
body.addObject(pocket5)
pocket5.Profile = sketch22
pocket5.Length = 9.3

# Sketch on YZ plane
sketch23 = doc.addObject("Sketcher::SketchObject", "Sketch022")
body.addObject(sketch23)
sketch23.AttachmentSupport = (doc.YZ_Plane, [""])
sketch23.MapMode = "FlatFace"
sketch23.addGeometry([
    Part.LineSegment(V(61, 68, 0), V(59, 68, 0)),
    Part.LineSegment(V(59, 68, 0), V(59, 42, 0)),
    Part.LineSegment(V(59, 42, 0), V(61, 42, 0)),
    Part.LineSegment(V(61, 42, 0), V(61, 68, 0)),
], False)
sketch23.addConstraint([
    Sketcher.Constraint("Coincident", 0, 2, 1, 1),
    Sketcher.Constraint("Coincident", 1, 2, 2, 1),
    Sketcher.Constraint("Coincident", 2, 2, 3, 1),
    Sketcher.Constraint("Coincident", 3, 2, 0, 1),
    Sketcher.Constraint("Horizontal", 0),
    Sketcher.Constraint("Vertical", 1),
    Sketcher.Constraint("Horizontal", 2),
    Sketcher.Constraint("Vertical", 3),
    Sketcher.Constraint("DistanceY", 1, 2, 1, 1, 26.0),
    Sketcher.Constraint("DistanceY", -1, 1, 0, 2, 68.0),
    Sketcher.Constraint("DistanceX", -1, 1, 2, 2, 61.0),
    Sketcher.Constraint("DistanceX", 0, 2, 0, 1, 1.95),
])
pocket6 = doc.addObject("PartDesign::Pocket", "Pocket005")
body.addObject(pocket6)
pocket6.Profile = sketch23
pocket6.Length = 2
pocket6.Reversed = True

# Sketch on YZ plane
sketch24 = doc.addObject("Sketcher::SketchObject", "Sketch023")
body.addObject(sketch24)
sketch24.AttachmentSupport = (doc.YZ_Plane, [""])
sketch24.MapMode = "FlatFace"
sketch24.AttachmentOffset = App.Placement(V(0, 0, 35), App.Rotation())
sketch24.addGeometry([
    Part.LineSegment(V(34, 82, 0), V(34, 0, 0)),  # 0
    Part.LineSegment(V(34, 0, 0), V(58, 0, 0)),  # 1
    Part.LineSegment(V(58, 0, 0), V(58, 2.1, 0)),  # 2
    Part.LineSegment(V(58, 2.1, 0), V(57.2, 2.1, 0)),  # 3
    Part.LineSegment(V(57.2, 2.1, 0), V(57.2, 31, 0)),  # 4
    Part.LineSegment(V(57.2, 31, 0), V(46.5, 31, 0)),  # 5
    Part.LineSegment(V(46.5, 31, 0), V(46.5, 4, 0)),  # 6
    Part.LineSegment(V(46.5, 4, 0), V(42, 4, 0)),  # 7
    Part.LineSegment(V(42, 4, 0), V(42, 31, 0)),  # 8
    Part.LineSegment(V(42, 31, 0), V(42.8, 31, 0)),  # 9
    Part.LineSegment(V(42.8, 31, 0), V(42.8, 51, 0)),  # 10
    Part.LineSegment(V(42.8, 51, 0), V(42, 51, 0)),  # 11
    Part.LineSegment(V(42, 51, 0), V(42, 78, 0)),  # 12
    Part.LineSegment(V(42, 78, 0), V(46.5, 78, 0)),  # 13
    Part.LineSegment(V(46.5, 78, 0), V(46.5, 76.7, 0)),  # 14
    Part.LineSegment(V(46.5, 76.7, 0), V(52.1, 76.7, 0)),  # 15
    Part.LineSegment(V(52.1, 76.7, 0), V(52.1, 78, 0)),  # 16
    Part.LineSegment(V(52.1, 78, 0), V(55, 78, 0)),  # 17
    Part.LineSegment(V(55, 78, 0), V(55, 79.9, 0)),  # 18
    Part.LineSegment(V(55, 79.9, 0), V(58, 79.9, 0)),  # 19
    Part.LineSegment(V(58, 79.9, 0), V(58, 82, 0)),  # 20
    Part.LineSegment(V(58, 82, 0), V(34, 82, 0)),  # 21
], False)
sketch24.addGeometry(Part.LineSegment(V(34, 82, 0), V(34, 0, 0)), True)  # axis
sketch24.addConstraint([
    Sketcher.Constraint("Coincident", 0, 2, 1, 1),
    Sketcher.Constraint("Coincident", 1, 2, 2, 1),
    Sketcher.Constraint("Coincident", 2, 2, 3, 1),
    Sketcher.Constraint("Coincident", 3, 2, 4, 1),
    Sketcher.Constraint("Coincident", 4, 2, 5, 1),
    Sketcher.Constraint("Coincident", 5, 2, 6, 1),
    Sketcher.Constraint("Coincident", 6, 2, 7, 1),
    Sketcher.Constraint("Coincident", 7, 2, 8, 1),
    Sketcher.Constraint("Coincident", 8, 2, 9, 1),
    Sketcher.Constraint("Coincident", 9, 2, 10, 1),
    Sketcher.Constraint("Coincident", 10, 2, 11, 1),
    Sketcher.Constraint("Coincident", 11, 2, 12, 1),
    Sketcher.Constraint("Coincident", 12, 2, 13, 1),
    Sketcher.Constraint("Coincident", 13, 2, 14, 1),
    Sketcher.Constraint("Coincident", 14, 2, 15, 1),
    Sketcher.Constraint("Coincident", 15, 2, 16, 1),
    Sketcher.Constraint("Coincident", 16, 2, 17, 1),
    Sketcher.Constraint("Coincident", 17, 2, 18, 1),
    Sketcher.Constraint("Coincident", 18, 2, 19, 1),
    Sketcher.Constraint("Coincident", 19, 2, 20, 1),
    Sketcher.Constraint("Coincident", 20, 2, 21, 1),
    Sketcher.Constraint("Coincident", 21, 2, 0, 1),
    Sketcher.Constraint("Vertical", 0),
    Sketcher.Constraint("Horizontal", 1),
    Sketcher.Constraint("Vertical", 2),
    Sketcher.Constraint("Horizontal", 3),
    Sketcher.Constraint("Vertical", 4),
    Sketcher.Constraint("Horizontal", 5),
    Sketcher.Constraint("Vertical", 6),
    Sketcher.Constraint("Horizontal", 7),
    Sketcher.Constraint("Vertical", 8),
    Sketcher.Constraint("Horizontal", 9),
    Sketcher.Constraint("Vertical", 10),
    Sketcher.Constraint("Horizontal", 11),
    Sketcher.Constraint("Vertical", 12),
    Sketcher.Constraint("Horizontal", 13),
    Sketcher.Constraint("Vertical", 14),
    Sketcher.Constraint("Horizontal", 15),
    Sketcher.Constraint("Vertical", 16),
    Sketcher.Constraint("Horizontal", 17),
    Sketcher.Constraint("Vertical", 18),
    Sketcher.Constraint("Horizontal", 19),
    Sketcher.Constraint("Vertical", 20),
    Sketcher.Constraint("Horizontal", 21),
    Sketcher.Constraint("Vertical", 22),
    Sketcher.Constraint("Coincident", 22, 1, 21, 2),
    Sketcher.Constraint("PointOnObject", 0, 2, -1),
    Sketcher.Constraint("PointOnObject", 22, 2, -1),
    Sketcher.Constraint("Horizontal", 5, 2, 8, 2),
    Sketcher.Constraint("Horizontal", 13, 2, 16, 2),
    Sketcher.Constraint("Vertical", 8, 2, 11, 2),
    Sketcher.Constraint("Vertical", 6, 2, 13, 2),
    Sketcher.Constraint("Vertical", 2, 2, 19, 2),
    Sketcher.Constraint("Equal", 8, 12),
    Sketcher.Constraint("Equal", 2, 20),
    Sketcher.Constraint("DistanceX", 1, 1, 1, 2, 24.0),
    Sketcher.Constraint("DistanceX", 19, 1, 19, 2, 3.0),
    Sketcher.Constraint("DistanceY", 0, 2, 0, 1, 82.0),
    Sketcher.Constraint("DistanceY", 6, 2, 6, 1, 27.0),
    Sketcher.Constraint("DistanceY", 10, 1, 10, 2, 20.0),
    Sketcher.Constraint("DistanceX", 7, 2, 7, 1, 4.5),
    Sketcher.Constraint("DistanceX", 9, 1, 9, 2, 0.8),
    Sketcher.Constraint("DistanceY", 2, 1, 2, 2, 2.1),
    Sketcher.Constraint("DistanceY", 4, 1, 4, 2, 28.9),
    Sketcher.Constraint("DistanceX", -1, 1, 0, 2, 34.0),
    Sketcher.Constraint("DistanceX", -1, 1, 7, 2, 42.0),
    Sketcher.Constraint("DistanceX", 3, 2, 3, 1, 0.75),
    Sketcher.Constraint("DistanceX", 15, 1, 15, 2, 5.65),
    Sketcher.Constraint("DistanceY", 14, 2, 14, 1, 1.35),
])
groove6 = doc.addObject("PartDesign::Groove", "Groove005")
body.addObject(groove6)
groove6.Profile = sketch24
groove6.ReferenceAxis = (sketch24, ["Axis0"])
groove6.Angle = 360

doc.recompute()
